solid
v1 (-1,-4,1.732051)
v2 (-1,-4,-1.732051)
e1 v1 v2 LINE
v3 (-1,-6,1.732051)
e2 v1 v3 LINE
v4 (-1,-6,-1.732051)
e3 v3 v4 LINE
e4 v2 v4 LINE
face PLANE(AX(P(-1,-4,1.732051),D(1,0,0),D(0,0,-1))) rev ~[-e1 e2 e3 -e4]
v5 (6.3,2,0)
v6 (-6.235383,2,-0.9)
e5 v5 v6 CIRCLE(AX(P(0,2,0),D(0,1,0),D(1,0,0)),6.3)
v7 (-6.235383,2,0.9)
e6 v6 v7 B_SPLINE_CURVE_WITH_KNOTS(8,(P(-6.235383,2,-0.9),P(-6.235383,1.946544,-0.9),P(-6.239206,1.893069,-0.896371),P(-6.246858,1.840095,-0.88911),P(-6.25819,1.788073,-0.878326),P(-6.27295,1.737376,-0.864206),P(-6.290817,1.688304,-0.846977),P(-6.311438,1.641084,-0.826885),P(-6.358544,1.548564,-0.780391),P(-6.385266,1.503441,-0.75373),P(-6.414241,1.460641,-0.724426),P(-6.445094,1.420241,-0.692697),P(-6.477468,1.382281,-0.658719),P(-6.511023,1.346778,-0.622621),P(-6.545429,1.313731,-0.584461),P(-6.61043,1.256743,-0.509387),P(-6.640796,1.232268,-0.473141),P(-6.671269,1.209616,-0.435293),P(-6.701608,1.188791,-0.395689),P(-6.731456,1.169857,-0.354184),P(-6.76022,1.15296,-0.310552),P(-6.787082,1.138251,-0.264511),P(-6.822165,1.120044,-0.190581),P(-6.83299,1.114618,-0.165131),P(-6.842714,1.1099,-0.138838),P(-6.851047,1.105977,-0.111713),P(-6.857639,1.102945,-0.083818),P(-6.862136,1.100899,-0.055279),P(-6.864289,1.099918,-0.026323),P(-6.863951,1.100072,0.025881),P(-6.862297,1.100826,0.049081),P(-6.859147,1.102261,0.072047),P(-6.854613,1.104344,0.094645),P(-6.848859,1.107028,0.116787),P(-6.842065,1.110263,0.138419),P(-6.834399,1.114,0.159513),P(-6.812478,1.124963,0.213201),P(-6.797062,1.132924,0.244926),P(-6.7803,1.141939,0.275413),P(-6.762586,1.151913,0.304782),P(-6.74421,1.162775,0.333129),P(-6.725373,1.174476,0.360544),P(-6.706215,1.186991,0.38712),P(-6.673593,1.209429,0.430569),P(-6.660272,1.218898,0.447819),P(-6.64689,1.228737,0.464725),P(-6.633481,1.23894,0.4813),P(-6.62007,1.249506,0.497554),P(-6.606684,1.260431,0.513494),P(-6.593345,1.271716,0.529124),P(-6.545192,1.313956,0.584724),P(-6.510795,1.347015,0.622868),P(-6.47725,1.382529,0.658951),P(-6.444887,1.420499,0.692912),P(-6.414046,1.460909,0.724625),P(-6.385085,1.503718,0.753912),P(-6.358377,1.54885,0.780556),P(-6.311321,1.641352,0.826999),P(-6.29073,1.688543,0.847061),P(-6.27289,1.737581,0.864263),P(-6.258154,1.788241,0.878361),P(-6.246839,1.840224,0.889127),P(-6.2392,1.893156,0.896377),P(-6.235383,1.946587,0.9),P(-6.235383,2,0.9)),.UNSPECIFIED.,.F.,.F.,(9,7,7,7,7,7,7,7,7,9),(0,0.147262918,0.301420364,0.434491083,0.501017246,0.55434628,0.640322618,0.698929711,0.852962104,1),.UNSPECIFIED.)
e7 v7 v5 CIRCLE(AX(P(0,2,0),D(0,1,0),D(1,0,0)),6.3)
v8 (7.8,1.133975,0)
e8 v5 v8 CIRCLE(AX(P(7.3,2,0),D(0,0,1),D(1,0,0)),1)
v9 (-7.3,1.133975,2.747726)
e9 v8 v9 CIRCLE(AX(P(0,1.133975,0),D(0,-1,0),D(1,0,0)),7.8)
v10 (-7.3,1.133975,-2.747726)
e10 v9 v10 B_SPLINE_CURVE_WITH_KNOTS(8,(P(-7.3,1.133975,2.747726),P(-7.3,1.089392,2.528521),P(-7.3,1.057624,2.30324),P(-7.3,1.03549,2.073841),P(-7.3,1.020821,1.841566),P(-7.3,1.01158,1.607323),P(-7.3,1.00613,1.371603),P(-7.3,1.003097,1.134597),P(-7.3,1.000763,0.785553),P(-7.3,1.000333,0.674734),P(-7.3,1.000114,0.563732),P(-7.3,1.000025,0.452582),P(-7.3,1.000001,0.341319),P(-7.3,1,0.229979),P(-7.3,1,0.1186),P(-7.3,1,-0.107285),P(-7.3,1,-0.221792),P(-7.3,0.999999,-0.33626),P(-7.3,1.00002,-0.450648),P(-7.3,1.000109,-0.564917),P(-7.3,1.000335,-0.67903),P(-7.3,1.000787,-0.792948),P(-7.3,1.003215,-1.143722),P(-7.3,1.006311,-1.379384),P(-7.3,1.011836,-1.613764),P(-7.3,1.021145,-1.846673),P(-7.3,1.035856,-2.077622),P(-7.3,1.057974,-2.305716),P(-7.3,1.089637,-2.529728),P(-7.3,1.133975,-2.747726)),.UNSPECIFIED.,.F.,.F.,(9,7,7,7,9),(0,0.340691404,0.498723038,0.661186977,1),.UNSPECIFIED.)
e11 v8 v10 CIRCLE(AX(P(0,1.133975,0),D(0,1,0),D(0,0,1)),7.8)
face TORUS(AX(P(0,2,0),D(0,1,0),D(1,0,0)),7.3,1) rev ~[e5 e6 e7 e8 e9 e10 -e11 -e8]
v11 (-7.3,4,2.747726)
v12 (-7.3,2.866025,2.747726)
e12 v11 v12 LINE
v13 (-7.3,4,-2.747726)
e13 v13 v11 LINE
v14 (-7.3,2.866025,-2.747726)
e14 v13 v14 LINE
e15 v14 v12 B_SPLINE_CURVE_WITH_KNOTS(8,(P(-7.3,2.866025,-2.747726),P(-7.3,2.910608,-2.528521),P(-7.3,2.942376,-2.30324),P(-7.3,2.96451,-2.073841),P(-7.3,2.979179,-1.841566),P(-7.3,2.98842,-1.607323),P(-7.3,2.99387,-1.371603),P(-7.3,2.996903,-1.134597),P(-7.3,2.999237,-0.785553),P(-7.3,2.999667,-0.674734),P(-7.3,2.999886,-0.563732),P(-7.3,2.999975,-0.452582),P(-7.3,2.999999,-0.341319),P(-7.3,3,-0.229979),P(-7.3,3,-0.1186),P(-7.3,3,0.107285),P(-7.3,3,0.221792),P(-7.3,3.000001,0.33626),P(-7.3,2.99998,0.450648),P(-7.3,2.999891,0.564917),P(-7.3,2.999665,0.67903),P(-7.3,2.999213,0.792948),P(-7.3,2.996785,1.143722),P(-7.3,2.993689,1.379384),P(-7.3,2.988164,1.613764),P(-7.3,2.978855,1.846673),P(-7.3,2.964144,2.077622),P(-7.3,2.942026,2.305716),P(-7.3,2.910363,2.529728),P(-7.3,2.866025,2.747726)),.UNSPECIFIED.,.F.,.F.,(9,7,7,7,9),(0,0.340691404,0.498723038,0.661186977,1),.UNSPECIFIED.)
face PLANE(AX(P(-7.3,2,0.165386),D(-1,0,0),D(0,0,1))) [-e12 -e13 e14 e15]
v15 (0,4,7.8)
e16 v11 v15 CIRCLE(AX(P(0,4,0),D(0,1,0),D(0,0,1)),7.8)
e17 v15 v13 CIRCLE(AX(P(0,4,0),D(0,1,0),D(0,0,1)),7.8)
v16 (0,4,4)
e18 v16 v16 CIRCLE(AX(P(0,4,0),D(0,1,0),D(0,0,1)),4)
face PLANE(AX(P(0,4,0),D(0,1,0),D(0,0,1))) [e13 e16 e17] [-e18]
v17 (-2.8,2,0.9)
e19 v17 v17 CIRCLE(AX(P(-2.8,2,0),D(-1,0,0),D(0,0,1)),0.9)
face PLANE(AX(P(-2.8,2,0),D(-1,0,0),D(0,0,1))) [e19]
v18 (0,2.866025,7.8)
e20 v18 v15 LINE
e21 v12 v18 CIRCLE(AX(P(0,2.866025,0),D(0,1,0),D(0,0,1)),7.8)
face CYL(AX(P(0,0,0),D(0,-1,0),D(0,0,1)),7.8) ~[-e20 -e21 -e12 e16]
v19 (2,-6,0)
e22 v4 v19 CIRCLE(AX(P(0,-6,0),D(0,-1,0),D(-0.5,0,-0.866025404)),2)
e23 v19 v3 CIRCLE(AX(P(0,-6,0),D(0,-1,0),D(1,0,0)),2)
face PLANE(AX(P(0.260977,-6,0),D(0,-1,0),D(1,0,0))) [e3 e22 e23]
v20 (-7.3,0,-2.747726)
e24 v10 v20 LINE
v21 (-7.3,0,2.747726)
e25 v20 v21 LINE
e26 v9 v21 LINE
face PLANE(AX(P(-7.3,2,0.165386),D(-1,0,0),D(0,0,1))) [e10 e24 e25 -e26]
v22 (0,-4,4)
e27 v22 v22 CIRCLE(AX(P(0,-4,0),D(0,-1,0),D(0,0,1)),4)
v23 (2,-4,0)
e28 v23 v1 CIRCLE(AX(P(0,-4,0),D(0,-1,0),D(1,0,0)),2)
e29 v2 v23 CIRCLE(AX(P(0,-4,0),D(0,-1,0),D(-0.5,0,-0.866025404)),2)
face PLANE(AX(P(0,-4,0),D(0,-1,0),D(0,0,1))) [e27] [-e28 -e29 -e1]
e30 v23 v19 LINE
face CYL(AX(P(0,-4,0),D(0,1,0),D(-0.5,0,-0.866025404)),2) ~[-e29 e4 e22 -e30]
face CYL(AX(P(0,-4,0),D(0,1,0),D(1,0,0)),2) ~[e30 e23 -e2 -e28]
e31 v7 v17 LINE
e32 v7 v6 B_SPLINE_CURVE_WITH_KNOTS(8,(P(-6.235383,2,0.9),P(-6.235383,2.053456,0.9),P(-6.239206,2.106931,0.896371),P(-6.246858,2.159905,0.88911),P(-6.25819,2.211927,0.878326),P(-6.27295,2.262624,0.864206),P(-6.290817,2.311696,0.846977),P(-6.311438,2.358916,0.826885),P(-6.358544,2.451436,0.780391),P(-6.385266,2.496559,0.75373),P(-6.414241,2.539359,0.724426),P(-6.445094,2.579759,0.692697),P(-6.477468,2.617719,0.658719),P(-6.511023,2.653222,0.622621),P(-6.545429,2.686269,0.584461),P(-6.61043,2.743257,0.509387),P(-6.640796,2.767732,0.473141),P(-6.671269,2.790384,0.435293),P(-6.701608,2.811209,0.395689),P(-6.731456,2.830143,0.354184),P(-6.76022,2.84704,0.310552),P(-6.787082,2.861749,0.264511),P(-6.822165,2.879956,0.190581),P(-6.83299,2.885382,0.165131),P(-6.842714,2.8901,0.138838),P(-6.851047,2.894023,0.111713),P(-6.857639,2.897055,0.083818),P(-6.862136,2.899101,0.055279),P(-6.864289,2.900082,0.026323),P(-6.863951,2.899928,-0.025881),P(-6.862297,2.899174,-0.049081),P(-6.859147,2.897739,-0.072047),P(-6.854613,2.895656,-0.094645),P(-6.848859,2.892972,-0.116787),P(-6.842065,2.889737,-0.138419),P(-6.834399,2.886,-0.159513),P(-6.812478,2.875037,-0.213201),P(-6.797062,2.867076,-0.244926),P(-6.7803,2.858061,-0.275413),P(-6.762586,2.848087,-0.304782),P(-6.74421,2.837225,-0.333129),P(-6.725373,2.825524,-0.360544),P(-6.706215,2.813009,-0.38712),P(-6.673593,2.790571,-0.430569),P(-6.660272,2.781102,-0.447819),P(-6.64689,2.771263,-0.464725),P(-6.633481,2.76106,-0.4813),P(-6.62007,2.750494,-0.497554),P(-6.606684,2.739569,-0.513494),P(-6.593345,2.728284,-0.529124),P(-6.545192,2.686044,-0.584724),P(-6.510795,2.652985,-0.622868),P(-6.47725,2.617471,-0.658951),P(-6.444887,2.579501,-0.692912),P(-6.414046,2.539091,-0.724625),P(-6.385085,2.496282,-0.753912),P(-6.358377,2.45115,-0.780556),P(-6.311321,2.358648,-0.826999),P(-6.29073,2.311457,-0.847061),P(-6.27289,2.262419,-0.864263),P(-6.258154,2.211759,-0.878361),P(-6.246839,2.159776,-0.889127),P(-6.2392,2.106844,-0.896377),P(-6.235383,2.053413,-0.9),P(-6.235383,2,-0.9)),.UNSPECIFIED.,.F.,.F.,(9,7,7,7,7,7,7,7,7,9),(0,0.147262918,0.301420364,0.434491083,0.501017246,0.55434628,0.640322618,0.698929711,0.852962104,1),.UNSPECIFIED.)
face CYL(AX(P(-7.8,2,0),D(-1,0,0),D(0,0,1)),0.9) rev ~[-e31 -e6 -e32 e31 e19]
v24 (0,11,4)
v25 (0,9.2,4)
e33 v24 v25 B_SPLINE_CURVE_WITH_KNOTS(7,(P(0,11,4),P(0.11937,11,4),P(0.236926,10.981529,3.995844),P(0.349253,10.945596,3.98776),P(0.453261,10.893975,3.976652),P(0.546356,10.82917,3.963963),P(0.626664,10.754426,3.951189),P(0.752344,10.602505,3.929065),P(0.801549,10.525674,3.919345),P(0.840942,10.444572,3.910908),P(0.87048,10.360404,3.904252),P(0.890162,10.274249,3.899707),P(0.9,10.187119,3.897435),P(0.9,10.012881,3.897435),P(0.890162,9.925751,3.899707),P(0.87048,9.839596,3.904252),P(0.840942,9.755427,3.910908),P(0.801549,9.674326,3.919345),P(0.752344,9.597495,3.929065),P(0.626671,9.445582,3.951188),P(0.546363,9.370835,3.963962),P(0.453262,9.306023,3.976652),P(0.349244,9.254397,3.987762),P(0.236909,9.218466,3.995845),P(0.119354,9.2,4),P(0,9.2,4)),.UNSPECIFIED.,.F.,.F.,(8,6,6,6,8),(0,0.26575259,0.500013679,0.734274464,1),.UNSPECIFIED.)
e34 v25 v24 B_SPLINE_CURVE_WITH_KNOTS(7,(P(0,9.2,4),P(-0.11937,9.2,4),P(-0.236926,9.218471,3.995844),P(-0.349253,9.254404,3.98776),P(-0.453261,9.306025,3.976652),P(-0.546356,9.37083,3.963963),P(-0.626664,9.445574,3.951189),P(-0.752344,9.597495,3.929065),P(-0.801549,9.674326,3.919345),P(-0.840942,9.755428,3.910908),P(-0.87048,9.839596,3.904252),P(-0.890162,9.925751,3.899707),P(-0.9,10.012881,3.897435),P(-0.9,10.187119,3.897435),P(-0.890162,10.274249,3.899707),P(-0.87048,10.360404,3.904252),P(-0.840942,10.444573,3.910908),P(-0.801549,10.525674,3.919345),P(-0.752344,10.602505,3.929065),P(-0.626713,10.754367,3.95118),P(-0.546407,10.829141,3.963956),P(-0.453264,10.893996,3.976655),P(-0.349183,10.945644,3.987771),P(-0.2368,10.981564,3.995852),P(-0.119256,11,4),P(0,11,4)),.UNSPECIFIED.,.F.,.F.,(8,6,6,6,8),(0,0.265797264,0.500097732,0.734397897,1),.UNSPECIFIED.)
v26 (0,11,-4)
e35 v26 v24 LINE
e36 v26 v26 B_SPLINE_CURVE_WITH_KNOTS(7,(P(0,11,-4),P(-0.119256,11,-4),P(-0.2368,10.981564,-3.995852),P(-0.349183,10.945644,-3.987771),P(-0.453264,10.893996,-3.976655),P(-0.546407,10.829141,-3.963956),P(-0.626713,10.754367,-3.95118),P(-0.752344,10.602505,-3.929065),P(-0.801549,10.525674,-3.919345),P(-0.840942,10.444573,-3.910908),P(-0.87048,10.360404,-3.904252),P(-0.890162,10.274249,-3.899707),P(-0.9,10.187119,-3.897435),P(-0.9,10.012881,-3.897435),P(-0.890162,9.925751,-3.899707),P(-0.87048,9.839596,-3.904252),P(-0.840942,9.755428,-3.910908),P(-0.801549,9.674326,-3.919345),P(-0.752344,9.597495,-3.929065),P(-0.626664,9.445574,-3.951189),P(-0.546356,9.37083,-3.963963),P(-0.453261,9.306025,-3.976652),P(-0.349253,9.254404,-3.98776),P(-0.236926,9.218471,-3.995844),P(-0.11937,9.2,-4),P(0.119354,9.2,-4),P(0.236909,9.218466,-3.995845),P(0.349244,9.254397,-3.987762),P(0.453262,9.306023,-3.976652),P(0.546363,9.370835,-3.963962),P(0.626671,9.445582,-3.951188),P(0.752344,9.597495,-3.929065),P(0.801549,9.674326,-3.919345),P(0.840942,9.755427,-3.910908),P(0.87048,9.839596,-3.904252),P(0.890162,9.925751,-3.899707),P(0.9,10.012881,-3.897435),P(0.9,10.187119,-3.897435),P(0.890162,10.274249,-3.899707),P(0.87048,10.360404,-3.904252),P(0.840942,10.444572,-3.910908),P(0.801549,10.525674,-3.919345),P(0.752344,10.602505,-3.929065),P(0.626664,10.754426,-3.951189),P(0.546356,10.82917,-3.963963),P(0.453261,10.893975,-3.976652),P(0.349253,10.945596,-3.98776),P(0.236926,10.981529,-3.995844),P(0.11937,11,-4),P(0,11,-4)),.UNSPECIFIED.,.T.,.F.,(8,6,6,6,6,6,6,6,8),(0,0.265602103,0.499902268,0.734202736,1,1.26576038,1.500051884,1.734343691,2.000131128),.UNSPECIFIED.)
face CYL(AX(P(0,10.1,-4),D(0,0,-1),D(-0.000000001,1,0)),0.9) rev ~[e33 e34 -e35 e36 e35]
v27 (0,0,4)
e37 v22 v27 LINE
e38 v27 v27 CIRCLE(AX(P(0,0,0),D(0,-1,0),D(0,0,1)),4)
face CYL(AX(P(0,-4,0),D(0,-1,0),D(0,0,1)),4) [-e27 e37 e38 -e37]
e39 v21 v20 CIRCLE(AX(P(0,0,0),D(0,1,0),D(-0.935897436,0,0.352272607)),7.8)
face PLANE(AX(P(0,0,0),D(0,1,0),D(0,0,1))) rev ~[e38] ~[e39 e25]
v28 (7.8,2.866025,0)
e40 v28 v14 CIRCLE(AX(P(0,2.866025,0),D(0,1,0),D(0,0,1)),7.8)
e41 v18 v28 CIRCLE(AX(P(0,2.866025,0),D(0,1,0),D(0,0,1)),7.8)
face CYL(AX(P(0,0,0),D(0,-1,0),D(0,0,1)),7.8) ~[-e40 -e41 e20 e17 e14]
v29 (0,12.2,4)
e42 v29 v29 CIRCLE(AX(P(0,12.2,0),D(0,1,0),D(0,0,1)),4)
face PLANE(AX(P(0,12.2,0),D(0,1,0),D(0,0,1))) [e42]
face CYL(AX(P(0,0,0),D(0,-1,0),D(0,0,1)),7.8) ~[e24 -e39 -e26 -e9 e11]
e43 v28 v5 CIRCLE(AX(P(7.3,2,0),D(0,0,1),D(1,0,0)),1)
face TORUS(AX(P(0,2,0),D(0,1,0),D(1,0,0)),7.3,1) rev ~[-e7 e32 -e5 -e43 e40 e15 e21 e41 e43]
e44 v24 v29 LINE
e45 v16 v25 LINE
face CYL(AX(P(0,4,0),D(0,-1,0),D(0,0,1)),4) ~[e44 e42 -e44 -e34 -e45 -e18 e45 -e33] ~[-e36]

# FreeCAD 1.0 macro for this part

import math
import FreeCAD as App
import Part
import Sketcher

V = App.Vector

doc = App.newDocument("Part")
body = doc.addObject("PartDesign::Body", "Body")

# Sketch on XZ plane
sketch1 = body.newObject("Sketcher::SketchObject", "Sketch")
sketch1.AttachmentSupport = (doc.getObject("XZ_Plane"), [""])
sketch1.MapMode = "FlatFace"
sketch1.addGeometry(Part.Circle(V(0, 0, 0), V(0, 0, 1), 7.8), False)
sketch1.addConstraint(Sketcher.Constraint("Coincident", 0, 3, -1, 1))
sketch1.addConstraint(Sketcher.Constraint("Diameter", 0, 15.6))
pad1 = body.newObject("PartDesign::Pad", "Pad")
pad1.Profile = sketch1
pad1.Length = 4
pad1.Reversed = True

# Sketch on XZ plane
sketch2 = body.newObject("Sketcher::SketchObject", "Sketch001")
sketch2.AttachmentSupport = (doc.getObject("XZ_Plane"), [""])
sketch2.MapMode = "FlatFace"
sketch2.AttachmentOffset = App.Placement(V(0, 0, -4), App.Rotation())
sketch2.addGeometry(Part.Circle(V(0, 0, 0), V(0, 0, 1), 4), False)
sketch2.addConstraint(Sketcher.Constraint("Coincident", 0, 3, -1, 1))
sketch2.addConstraint(Sketcher.Constraint("Diameter", 0, 8.0))
pad2 = body.newObject("PartDesign::Pad", "Pad001")
pad2.Profile = sketch2
pad2.Length = 8.2
pad2.Reversed = True

# Sketch on XY plane
sketch3 = body.newObject("Sketcher::SketchObject", "Sketch002")
sketch3.AttachmentSupport = (doc.getObject("XY_Plane"), [""])
sketch3.MapMode = "FlatFace"
sketch3.addGeometry(Part.Circle(V(7.3, 2, 0), V(0, 0, 1), 1), False)
sketch3.addConstraint(Sketcher.Constraint("Diameter", 0, 2.0))
sketch3.addConstraint(Sketcher.Constraint("DistanceY", -1, 1, 0, 3, 2.0))
sketch3.addConstraint(Sketcher.Constraint("DistanceX", -1, 1, 0, 3, 7.3))

# Sketch on XZ plane
sketch4 = body.newObject("Sketcher::SketchObject", "Sketch003")
sketch4.AttachmentSupport = (doc.getObject("XZ_Plane"), [""])
sketch4.MapMode = "FlatFace"
sketch4.AttachmentOffset = App.Placement(V(0, 0, -2), App.Rotation())
sketch4.addGeometry(Part.Circle(V(0, 0, 0), V(0, 0, 1), 7.3), False)
sketch4.addConstraint(Sketcher.Constraint("Coincident", 0, 3, -1, 1))
sketch4.addConstraint(Sketcher.Constraint("Diameter", 0, 14.6))
doc.recompute()

subtractivepipe = body.newObject("PartDesign::SubtractivePipe", "SubtractivePipe")
subtractivepipe.Profile = sketch3
subtractivepipe.Spine = (sketch4, ["Edge1"])

# Sketch on XY plane
sketch5 = body.newObject("Sketcher::SketchObject", "Sketch004")
sketch5.AttachmentSupport = (doc.getObject("XY_Plane"), [""])
sketch5.MapMode = "FlatFace"
sketch5.AttachmentOffset = App.Placement(V(0, 0, -4), App.Rotation())
sketch5.addGeometry(Part.Circle(V(0, 10.1, 0), V(0, 0, 1), 0.9), False)
sketch5.addConstraint(Sketcher.Constraint("PointOnObject", 0, 3, -2))
sketch5.addConstraint(Sketcher.Constraint("Diameter", 0, 1.8))
sketch5.addConstraint(Sketcher.Constraint("DistanceY", -1, 1, 0, 3, 10.1))
pocket1 = body.newObject("PartDesign::Pocket", "Pocket")
pocket1.Profile = sketch5
pocket1.Type = "ThroughAll"
pocket1.Reversed = True

# Sketch on XZ plane
sketch6 = body.newObject("Sketcher::SketchObject", "Sketch005")
sketch6.AttachmentSupport = (doc.getObject("XZ_Plane"), [""])
sketch6.MapMode = "FlatFace"
sketch6.AttachmentOffset = App.Placement(V(0, 0, 4), App.Rotation())
sketch6.addGeometry(Part.Circle(V(0, 0, 0), V(0, 0, 1), 4), False)
sketch6.addConstraint(Sketcher.Constraint("Coincident", 0, 3, -1, 1))
sketch6.addConstraint(Sketcher.Constraint("Diameter", 0, 8.0))
pad3 = body.newObject("PartDesign::Pad", "Pad002")
pad3.Profile = sketch6
pad3.Length = 4
pad3.Reversed = True

# Sketch on XZ plane
sketch7 = body.newObject("Sketcher::SketchObject", "Sketch006")
sketch7.AttachmentSupport = (doc.getObject("XZ_Plane"), [""])
sketch7.MapMode = "FlatFace"
sketch7.AttachmentOffset = App.Placement(V(0, 0, 4), App.Rotation())
sketch7.addGeometry(Part.ArcOfCircle(Part.Circle(V(0, 0, 0), V(0, 0, 1), 2), math.radians(0), math.radians(120)), False)
sketch7.addGeometry(Part.LineSegment(V(-1, 1.732051, 0), V(-1, -1.732051, 0)), False)
sketch7.addGeometry(Part.ArcOfCircle(Part.Circle(V(0, 0, 0), V(0, 0, 1), 2), math.radians(-120), math.radians(0)), False)
sketch7.addConstraint(Sketcher.Constraint("Coincident", 0, 2, 1, 1))
sketch7.addConstraint(Sketcher.Constraint("Coincident", 1, 2, 2, 1))
sketch7.addConstraint(Sketcher.Constraint("Tangent", 2, 2, 0, 1))
sketch7.addConstraint(Sketcher.Constraint("Vertical", 1))
sketch7.addConstraint(Sketcher.Constraint("Coincident", 0, 3, -1, 1))
sketch7.addConstraint(Sketcher.Constraint("Equal", 0, 2))
sketch7.addConstraint(Sketcher.Constraint("PointOnObject", 2, 2, -1))
sketch7.addConstraint(Sketcher.Constraint("Radius", 0, 2.0))
sketch7.addConstraint(Sketcher.Constraint("DistanceX", 0, 2, -1, 1, 1.0))
pad4 = body.newObject("PartDesign::Pad", "Pad003")
pad4.Profile = sketch7
pad4.Length = 2

# Sketch on YZ plane
sketch8 = body.newObject("Sketcher::SketchObject", "Sketch007")
sketch8.AttachmentSupport = (doc.getObject("YZ_Plane"), [""])
sketch8.MapMode = "FlatFace"
sketch8.AttachmentOffset = App.Placement(V(0, 0, -7.8), App.Rotation())
sketch8.addGeometry(Part.Circle(V(2, 0, 0), V(0, 0, 1), 0.9), False)
sketch8.addConstraint(Sketcher.Constraint("PointOnObject", 0, 3, -1))
sketch8.addConstraint(Sketcher.Constraint("Diameter", 0, 1.8))
sketch8.addConstraint(Sketcher.Constraint("DistanceX", -1, 1, 0, 3, 2.0))
pocket2 = body.newObject("PartDesign::Pocket", "Pocket001")
pocket2.Profile = sketch8
pocket2.Length = 5
pocket2.Reversed = True

# Sketch on YZ plane
sketch9 = body.newObject("Sketcher::SketchObject", "Sketch008")
sketch9.AttachmentSupport = (doc.getObject("YZ_Plane"), [""])
sketch9.MapMode = "FlatFace"
sketch9.AttachmentOffset = App.Placement(V(0, 0, -7.8), App.Rotation())
sketch9.addGeometry(Part.LineSegment(V(4, -3.719762, 0), V(0, -3.719762, 0)), False)
sketch9.addGeometry(Part.LineSegment(V(0, -3.719762, 0), V(0, 4.050535, 0)), False)
sketch9.addGeometry(Part.LineSegment(V(0, 4.050535, 0), V(4, 4.050535, 0)), False)
sketch9.addGeometry(Part.LineSegment(V(4, 4.050535, 0), V(4, -3.719762, 0)), False)
sketch9.addConstraint(Sketcher.Constraint("Coincident", 0, 2, 1, 1))
sketch9.addConstraint(Sketcher.Constraint("Coincident", 1, 2, 2, 1))
sketch9.addConstraint(Sketcher.Constraint("Coincident", 2, 2, 3, 1))
sketch9.addConstraint(Sketcher.Constraint("Coincident", 3, 2, 0, 1))
sketch9.addConstraint(Sketcher.Constraint("Horizontal", 0))
sketch9.addConstraint(Sketcher.Constraint("Vertical", 1))
sketch9.addConstraint(Sketcher.Constraint("Horizontal", 2))
sketch9.addConstraint(Sketcher.Constraint("Vertical", 3))
sketch9.addConstraint(Sketcher.Constraint("PointOnObject", 0, 2, -2))
sketch9.addConstraint(Sketcher.Constraint("DistanceX", 0, 2, 0, 1, 4.0))
sketch9.addConstraint(Sketcher.Constraint("DistanceY", 1, 1, 1, 2, 7.770298))
sketch9.addConstraint(Sketcher.Constraint("DistanceY", 0, 2, -1, 1, 3.719762))
pocket3 = body.newObject("PartDesign::Pocket", "Pocket002")
pocket3.Profile = sketch9
pocket3.Length = 0.5
pocket3.Reversed = True

doc.recompute()
